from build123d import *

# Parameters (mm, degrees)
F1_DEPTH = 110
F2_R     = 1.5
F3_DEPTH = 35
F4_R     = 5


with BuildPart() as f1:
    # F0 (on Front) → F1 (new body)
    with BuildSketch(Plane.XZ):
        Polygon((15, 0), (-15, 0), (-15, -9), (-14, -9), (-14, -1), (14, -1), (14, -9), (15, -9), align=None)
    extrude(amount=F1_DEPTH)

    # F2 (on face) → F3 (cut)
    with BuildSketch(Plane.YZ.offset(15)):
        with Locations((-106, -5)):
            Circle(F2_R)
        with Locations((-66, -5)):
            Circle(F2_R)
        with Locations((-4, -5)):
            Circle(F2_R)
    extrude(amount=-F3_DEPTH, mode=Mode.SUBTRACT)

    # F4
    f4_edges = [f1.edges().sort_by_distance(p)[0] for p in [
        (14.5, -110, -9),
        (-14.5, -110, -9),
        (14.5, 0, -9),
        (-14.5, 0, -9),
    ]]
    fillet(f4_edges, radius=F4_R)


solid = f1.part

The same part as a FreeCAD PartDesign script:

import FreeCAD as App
import Part
import Sketcher

V = App.Vector


def edges_at(feature, points):
    """Names of the edges that pass closest to the given points."""
    edges = feature.Shape.Edges
    near = lambda p: min(range(len(edges)), key=lambda i: edges[i].distToShape(Part.Vertex(*p))[0])
    return sorted({f"Edge{near(p) + 1}" for p in points})


def add_polygon(sketch, points):
    """Adds a closed chain of lines whose ends are joined by coincident constraints."""
    first, n = sketch.GeometryCount, len(points)
    for a, b in zip(points, points[1:] + points[:1]):
        sketch.addGeometry(Part.LineSegment(App.Vector(*a, 0), App.Vector(*b, 0)), False)
    for i in range(n):
        sketch.addConstraint(Sketcher.Constraint("Coincident", first + i, 2, first + (i + 1) % n, 1))

doc = App.newDocument("Part")
params = doc.addObject("Spreadsheet::Sheet", "Params")
for row, (alias, value) in enumerate([
    ("sketch1_width", "30 mm"),
    ("sketch1_width2", "1 mm"),
    ("sketch1_height", "9 mm"),
    ("sketch1_height2", "8 mm"),
    ("pad1_length", "110 mm"),
    ("sketch2_diameter", "3 mm"),
    ("pocket1_length", "35 mm"),
    ("fillet_radius", "5 mm"),
], start=1):
    params.set(f"A{row}", alias)
    params.set(f"B{row}", "=" + value)
    params.setAlias(f"B{row}", alias)

body = doc.addObject("PartDesign::Body", "Body")

# Sketch on XZ plane
sketch1 = doc.addObject("Sketcher::SketchObject", "Sketch")
body.addObject(sketch1)
sketch1.AttachmentSupport = (doc.XZ_Plane, [""])
sketch1.MapMode = "FlatFace"
add_polygon(sketch1, [(15, 0), (-15, 0), (-15, -9), (-14, -9), (-14, -1), (14, -1), (14, -9), (15, -9)])  # lines 0-7
sketch1.addConstraint(Sketcher.Constraint("Horizontal", 0))
sketch1.addConstraint(Sketcher.Constraint("Vertical", 1))
sketch1.addConstraint(Sketcher.Constraint("Horizontal", 2))
sketch1.addConstraint(Sketcher.Constraint("Vertical", 3))
sketch1.addConstraint(Sketcher.Constraint("Horizontal", 4))
sketch1.addConstraint(Sketcher.Constraint("Vertical", 5))
sketch1.addConstraint(Sketcher.Constraint("Horizontal", 6))
sketch1.addConstraint(Sketcher.Constraint("Vertical", 7))
sketch1.addConstraint(Sketcher.Constraint("Symmetric", 0, 2, 7, 2, -1, 1))
sketch1.addConstraint(Sketcher.Constraint("Symmetric", 2, 2, 5, 2, -2))
sketch1.addConstraint(Sketcher.Constraint("DistanceX", 0, 2, 0, 1, 30.0))
sketch1.addConstraint(Sketcher.Constraint("DistanceX", 2, 1, 2, 2, 1.0))
sketch1.addConstraint(Sketcher.Constraint("DistanceY", 1, 2, 1, 1, 9.0))
sketch1.addConstraint(Sketcher.Constraint("DistanceY", 3, 1, 3, 2, 8.0))
sketch1.setExpression("Constraints[18]", "Params.sketch1_width")
sketch1.setExpression("Constraints[19]", "Params.sketch1_width2")
sketch1.setExpression("Constraints[20]", "Params.sketch1_height")
sketch1.setExpression("Constraints[21]", "Params.sketch1_height2")
pad1 = doc.addObject("PartDesign::Pad", "Pad")
body.addObject(pad1)
pad1.Profile = sketch1
pad1.setExpression("Length", "Params.pad1_length")

# Sketch on YZ plane
sketch2 = doc.addObject("Sketcher::SketchObject", "Sketch001")
body.addObject(sketch2)
sketch2.AttachmentSupport = (doc.YZ_Plane, [""])
sketch2.MapMode = "FlatFace"
sketch2.AttachmentOffset = App.Placement(V(0, 0, 15), App.Rotation())
sketch2.addGeometry(Part.Circle(V(-106, -5, 0), V(0, 0, 1), 1.5), False)
sketch2.addGeometry(Part.Circle(V(-66, -5, 0), V(0, 0, 1), 1.5), False)
sketch2.addGeometry(Part.Circle(V(-4, -5, 0), V(0, 0, 1), 1.5), False)
sketch2.addConstraint(Sketcher.Constraint("Equal", 0, 1))
sketch2.addConstraint(Sketcher.Constraint("Equal", 1, 2))
sketch2.addConstraint(Sketcher.Constraint("Horizontal", 0, 3, 1, 3))
sketch2.addConstraint(Sketcher.Constraint("Horizontal", 1, 3, 2, 3))
sketch2.addConstraint(Sketcher.Constraint("Diameter", 0, 3.0))
sketch2.addConstraint(Sketcher.Constraint("DistanceX", 0, 3, -1, 1, 106.0))
sketch2.addConstraint(Sketcher.Constraint("DistanceY", 0, 3, -1, 1, 5.0))
sketch2.addConstraint(Sketcher.Constraint("DistanceX", 1, 3, -1, 1, 66.0))
sketch2.addConstraint(Sketcher.Constraint("DistanceX", 2, 3, -1, 1, 4.0))
sketch2.setExpression("Constraints[4]", "Params.sketch2_diameter")
pocket1 = doc.addObject("PartDesign::Pocket", "Pocket")
body.addObject(pocket1)
pocket1.Profile = sketch2
pocket1.setExpression("Length", "Params.pocket1_length")
doc.recompute()

fillet = doc.addObject("PartDesign::Fillet", "Fillet")
body.addObject(fillet)
fillet.Base = (pocket1, edges_at(pocket1, [
    (14.5, -110, -9),
    (-14.5, -110, -9),
    (14.5, 0, -9),
    (-14.5, 0, -9),
]))
fillet.setExpression("Radius", "Params.fillet_radius")

doc.recompute()
